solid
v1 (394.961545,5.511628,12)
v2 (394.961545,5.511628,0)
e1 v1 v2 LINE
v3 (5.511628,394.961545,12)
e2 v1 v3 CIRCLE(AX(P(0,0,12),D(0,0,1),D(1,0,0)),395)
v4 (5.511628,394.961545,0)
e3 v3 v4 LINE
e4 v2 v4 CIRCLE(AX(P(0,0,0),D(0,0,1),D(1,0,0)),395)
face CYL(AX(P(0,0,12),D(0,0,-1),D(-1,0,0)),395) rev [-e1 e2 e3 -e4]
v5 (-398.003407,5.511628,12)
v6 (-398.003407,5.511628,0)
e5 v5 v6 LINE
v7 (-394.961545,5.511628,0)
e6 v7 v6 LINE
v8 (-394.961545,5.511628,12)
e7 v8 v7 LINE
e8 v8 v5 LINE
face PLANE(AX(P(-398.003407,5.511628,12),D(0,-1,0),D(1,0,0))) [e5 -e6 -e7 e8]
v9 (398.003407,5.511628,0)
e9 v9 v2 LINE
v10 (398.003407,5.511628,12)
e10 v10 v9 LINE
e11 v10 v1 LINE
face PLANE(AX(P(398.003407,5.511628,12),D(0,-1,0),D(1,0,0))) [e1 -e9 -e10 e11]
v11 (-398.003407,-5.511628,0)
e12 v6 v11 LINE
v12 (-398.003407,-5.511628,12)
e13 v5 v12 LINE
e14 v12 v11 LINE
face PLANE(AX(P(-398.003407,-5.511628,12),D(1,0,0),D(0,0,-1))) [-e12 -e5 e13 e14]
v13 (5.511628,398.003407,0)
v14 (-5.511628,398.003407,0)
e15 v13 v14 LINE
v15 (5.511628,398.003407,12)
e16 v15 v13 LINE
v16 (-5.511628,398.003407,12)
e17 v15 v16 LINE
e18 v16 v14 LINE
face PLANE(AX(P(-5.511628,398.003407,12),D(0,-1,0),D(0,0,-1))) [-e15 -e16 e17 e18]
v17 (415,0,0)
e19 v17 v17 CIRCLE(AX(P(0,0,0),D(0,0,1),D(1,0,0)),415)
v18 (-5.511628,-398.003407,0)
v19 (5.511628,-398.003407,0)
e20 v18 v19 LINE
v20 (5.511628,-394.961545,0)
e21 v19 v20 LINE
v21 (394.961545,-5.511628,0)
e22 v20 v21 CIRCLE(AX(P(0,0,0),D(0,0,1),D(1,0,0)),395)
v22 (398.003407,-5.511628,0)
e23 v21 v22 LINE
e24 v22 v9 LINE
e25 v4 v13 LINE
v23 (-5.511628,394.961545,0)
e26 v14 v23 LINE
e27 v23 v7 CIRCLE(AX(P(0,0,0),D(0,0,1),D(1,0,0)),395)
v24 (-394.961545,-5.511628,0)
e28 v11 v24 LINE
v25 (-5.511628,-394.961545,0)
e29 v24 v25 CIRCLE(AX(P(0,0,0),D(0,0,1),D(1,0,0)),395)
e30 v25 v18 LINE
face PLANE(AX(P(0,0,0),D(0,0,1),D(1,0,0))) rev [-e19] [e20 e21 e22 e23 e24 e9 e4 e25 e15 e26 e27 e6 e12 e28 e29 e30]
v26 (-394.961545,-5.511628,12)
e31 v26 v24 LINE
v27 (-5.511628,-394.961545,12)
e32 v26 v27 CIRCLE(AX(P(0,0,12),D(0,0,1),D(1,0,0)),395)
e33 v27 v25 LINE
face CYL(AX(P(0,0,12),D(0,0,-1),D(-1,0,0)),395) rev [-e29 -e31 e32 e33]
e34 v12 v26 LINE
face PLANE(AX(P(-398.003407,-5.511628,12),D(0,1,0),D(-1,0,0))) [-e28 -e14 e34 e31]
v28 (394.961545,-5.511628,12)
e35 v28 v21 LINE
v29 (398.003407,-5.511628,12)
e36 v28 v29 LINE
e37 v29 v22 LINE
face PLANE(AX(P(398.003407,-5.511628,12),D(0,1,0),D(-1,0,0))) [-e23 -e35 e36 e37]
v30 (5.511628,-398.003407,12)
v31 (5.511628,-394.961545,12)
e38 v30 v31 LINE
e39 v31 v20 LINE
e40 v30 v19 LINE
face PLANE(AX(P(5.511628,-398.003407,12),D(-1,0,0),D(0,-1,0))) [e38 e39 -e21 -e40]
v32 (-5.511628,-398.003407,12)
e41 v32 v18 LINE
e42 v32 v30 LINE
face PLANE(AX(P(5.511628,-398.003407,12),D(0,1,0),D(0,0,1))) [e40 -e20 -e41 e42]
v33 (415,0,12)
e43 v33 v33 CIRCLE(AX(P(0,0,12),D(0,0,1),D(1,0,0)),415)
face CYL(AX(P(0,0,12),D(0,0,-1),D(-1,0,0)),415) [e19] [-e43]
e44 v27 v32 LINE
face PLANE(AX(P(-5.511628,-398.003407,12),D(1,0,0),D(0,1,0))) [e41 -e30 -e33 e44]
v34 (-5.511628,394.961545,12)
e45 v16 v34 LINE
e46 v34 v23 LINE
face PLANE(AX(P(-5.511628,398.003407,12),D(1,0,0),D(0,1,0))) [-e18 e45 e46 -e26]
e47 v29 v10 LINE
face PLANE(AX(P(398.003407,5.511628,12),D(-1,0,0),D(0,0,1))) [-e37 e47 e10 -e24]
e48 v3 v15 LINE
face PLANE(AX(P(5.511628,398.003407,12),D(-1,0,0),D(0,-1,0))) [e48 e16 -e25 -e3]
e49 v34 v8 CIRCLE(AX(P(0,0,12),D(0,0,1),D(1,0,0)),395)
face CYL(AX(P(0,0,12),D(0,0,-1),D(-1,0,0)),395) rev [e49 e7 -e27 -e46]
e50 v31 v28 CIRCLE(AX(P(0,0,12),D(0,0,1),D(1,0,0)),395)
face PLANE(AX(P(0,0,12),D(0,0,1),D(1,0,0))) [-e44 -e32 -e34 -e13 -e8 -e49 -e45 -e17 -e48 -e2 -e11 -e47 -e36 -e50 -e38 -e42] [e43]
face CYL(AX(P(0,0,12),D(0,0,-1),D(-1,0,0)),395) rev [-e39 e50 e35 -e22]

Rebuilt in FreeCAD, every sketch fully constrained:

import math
import FreeCAD as App
import Part
import Sketcher

doc = App.newDocument("Part")
body = doc.addObject("PartDesign::Body", "Body")

# Sketch on XY plane
sketch1 = doc.addObject("Sketcher::SketchObject", "Sketch")
body.addObject(sketch1)
sketch1.AttachmentSupport = (doc.XY_Plane, [""])
sketch1.MapMode = "FlatFace"
sketch1.addGeometry([
    Part.Circle(App.Vector(0, 0, 0), App.Vector(0, 0, 1), 415),  # 0
    Part.LineSegment(App.Vector(395, 5.5, 0), App.Vector(398, 5.5, 0)),  # 1
    Part.LineSegment(App.Vector(398, 5.5, 0), App.Vector(398, -5.5, 0)),  # 2
    Part.LineSegment(App.Vector(398, -5.5, 0), App.Vector(395, -5.5, 0)),  # 3
    Part.ArcOfCircle(Part.Circle(App.Vector(0, 0, 0), App.Vector(0, 0, 1), 395), math.radians(-89), math.radians(-1)),  # 4
    Part.LineSegment(App.Vector(5.5, -395, 0), App.Vector(5.5, -398, 0)),  # 5
    Part.LineSegment(App.Vector(5.5, -398, 0), App.Vector(-5.5, -398, 0)),  # 6
    Part.LineSegment(App.Vector(-5.5, -398, 0), App.Vector(-5.5, -395, 0)),  # 7
    Part.ArcOfCircle(Part.Circle(App.Vector(0, 0, 0), App.Vector(0, 0, 1), 395), math.radians(-179), math.radians(-91)),  # 8
    Part.LineSegment(App.Vector(-395, -5.5, 0), App.Vector(-398, -5.5, 0)),  # 9
    Part.LineSegment(App.Vector(-398, -5.5, 0), App.Vector(-398, 5.5, 0)),  # 10
    Part.LineSegment(App.Vector(-398, 5.5, 0), App.Vector(-395, 5.5, 0)),  # 11
    Part.ArcOfCircle(Part.Circle(App.Vector(0, 0, 0), App.Vector(0, 0, 1), 395), math.radians(91), math.radians(179)),  # 12
    Part.LineSegment(App.Vector(-5.5, 395, 0), App.Vector(-5.5, 398, 0)),  # 13
    Part.LineSegment(App.Vector(-5.5, 398, 0), App.Vector(5.5, 398, 0)),  # 14
    Part.LineSegment(App.Vector(5.5, 398, 0), App.Vector(5.5, 395, 0)),  # 15
    Part.ArcOfCircle(Part.Circle(App.Vector(0, 0, 0), App.Vector(0, 0, 1), 395), math.radians(1), math.radians(89)),  # 16
], False)
sketch1.addConstraint([
    Sketcher.Constraint("Coincident", 1, 2, 2, 1),
    Sketcher.Constraint("Coincident", 2, 2, 3, 1),
    Sketcher.Constraint("Coincident", 3, 2, 4, 2),
    Sketcher.Constraint("Coincident", 4, 1, 5, 1),
    Sketcher.Constraint("Coincident", 5, 2, 6, 1),
    Sketcher.Constraint("Coincident", 6, 2, 7, 1),
    Sketcher.Constraint("Coincident", 7, 2, 8, 2),
    Sketcher.Constraint("Coincident", 8, 1, 9, 1),
    Sketcher.Constraint("Coincident", 9, 2, 10, 1),
    Sketcher.Constraint("Coincident", 10, 2, 11, 1),
    Sketcher.Constraint("Coincident", 11, 2, 12, 2),
    Sketcher.Constraint("Coincident", 12, 1, 13, 1),
    Sketcher.Constraint("Coincident", 13, 2, 14, 1),
    Sketcher.Constraint("Coincident", 14, 2, 15, 1),
    Sketcher.Constraint("Coincident", 15, 2, 16, 2),
    Sketcher.Constraint("Coincident", 16, 1, 1, 1),
    Sketcher.Constraint("Horizontal", 1),
    Sketcher.Constraint("Vertical", 2),
    Sketcher.Constraint("Horizontal", 3),
    Sketcher.Constraint("Vertical", 5),
    Sketcher.Constraint("Horizontal", 6),
    Sketcher.Constraint("Vertical", 7),
    Sketcher.Constraint("Horizontal", 9),
    Sketcher.Constraint("Vertical", 10),
    Sketcher.Constraint("Horizontal", 11),
    Sketcher.Constraint("Vertical", 13),
    Sketcher.Constraint("Horizontal", 14),
    Sketcher.Constraint("Vertical", 15),
    Sketcher.Constraint("Coincident", 0, 3, -1, 1),
    Sketcher.Constraint("Coincident", 4, 3, -1, 1),
    Sketcher.Constraint("Coincident", 8, 3, -1, 1),
    Sketcher.Constraint("Coincident", 12, 3, -1, 1),
    Sketcher.Constraint("Coincident", 16, 3, -1, 1),
    Sketcher.Constraint("Equal", 4, 8),
    Sketcher.Constraint("Equal", 8, 12),
    Sketcher.Constraint("Equal", 12, 16),
    Sketcher.Constraint("Symmetric", 1, 2, 9, 2, -1, 1),
    Sketcher.Constraint("Symmetric", 5, 2, 13, 2, -1, 1),
    Sketcher.Constraint("Horizontal", 1, 2, 10, 2),
    Sketcher.Constraint("Vertical", 5, 2, 14, 2),
    Sketcher.Constraint("Equal", 1, 3),
    Sketcher.Constraint("Equal", 6, 14),
    Sketcher.Constraint("Equal", 14, 2),
    Sketcher.Constraint("Equal", 11, 5),
    Sketcher.Constraint("Diameter", 0, 830.0),
    Sketcher.Constraint("Radius", 4, 395.0),
    Sketcher.Constraint("DistanceX", 1, 1, 1, 2, 3.041863),
    Sketcher.Constraint("DistanceX", 6, 2, 6, 1, 11.023256),
])
pad1 = doc.addObject("PartDesign::Pad", "Pad")
body.addObject(pad1)
pad1.Profile = sketch1
pad1.Length = 12

doc.recompute()
